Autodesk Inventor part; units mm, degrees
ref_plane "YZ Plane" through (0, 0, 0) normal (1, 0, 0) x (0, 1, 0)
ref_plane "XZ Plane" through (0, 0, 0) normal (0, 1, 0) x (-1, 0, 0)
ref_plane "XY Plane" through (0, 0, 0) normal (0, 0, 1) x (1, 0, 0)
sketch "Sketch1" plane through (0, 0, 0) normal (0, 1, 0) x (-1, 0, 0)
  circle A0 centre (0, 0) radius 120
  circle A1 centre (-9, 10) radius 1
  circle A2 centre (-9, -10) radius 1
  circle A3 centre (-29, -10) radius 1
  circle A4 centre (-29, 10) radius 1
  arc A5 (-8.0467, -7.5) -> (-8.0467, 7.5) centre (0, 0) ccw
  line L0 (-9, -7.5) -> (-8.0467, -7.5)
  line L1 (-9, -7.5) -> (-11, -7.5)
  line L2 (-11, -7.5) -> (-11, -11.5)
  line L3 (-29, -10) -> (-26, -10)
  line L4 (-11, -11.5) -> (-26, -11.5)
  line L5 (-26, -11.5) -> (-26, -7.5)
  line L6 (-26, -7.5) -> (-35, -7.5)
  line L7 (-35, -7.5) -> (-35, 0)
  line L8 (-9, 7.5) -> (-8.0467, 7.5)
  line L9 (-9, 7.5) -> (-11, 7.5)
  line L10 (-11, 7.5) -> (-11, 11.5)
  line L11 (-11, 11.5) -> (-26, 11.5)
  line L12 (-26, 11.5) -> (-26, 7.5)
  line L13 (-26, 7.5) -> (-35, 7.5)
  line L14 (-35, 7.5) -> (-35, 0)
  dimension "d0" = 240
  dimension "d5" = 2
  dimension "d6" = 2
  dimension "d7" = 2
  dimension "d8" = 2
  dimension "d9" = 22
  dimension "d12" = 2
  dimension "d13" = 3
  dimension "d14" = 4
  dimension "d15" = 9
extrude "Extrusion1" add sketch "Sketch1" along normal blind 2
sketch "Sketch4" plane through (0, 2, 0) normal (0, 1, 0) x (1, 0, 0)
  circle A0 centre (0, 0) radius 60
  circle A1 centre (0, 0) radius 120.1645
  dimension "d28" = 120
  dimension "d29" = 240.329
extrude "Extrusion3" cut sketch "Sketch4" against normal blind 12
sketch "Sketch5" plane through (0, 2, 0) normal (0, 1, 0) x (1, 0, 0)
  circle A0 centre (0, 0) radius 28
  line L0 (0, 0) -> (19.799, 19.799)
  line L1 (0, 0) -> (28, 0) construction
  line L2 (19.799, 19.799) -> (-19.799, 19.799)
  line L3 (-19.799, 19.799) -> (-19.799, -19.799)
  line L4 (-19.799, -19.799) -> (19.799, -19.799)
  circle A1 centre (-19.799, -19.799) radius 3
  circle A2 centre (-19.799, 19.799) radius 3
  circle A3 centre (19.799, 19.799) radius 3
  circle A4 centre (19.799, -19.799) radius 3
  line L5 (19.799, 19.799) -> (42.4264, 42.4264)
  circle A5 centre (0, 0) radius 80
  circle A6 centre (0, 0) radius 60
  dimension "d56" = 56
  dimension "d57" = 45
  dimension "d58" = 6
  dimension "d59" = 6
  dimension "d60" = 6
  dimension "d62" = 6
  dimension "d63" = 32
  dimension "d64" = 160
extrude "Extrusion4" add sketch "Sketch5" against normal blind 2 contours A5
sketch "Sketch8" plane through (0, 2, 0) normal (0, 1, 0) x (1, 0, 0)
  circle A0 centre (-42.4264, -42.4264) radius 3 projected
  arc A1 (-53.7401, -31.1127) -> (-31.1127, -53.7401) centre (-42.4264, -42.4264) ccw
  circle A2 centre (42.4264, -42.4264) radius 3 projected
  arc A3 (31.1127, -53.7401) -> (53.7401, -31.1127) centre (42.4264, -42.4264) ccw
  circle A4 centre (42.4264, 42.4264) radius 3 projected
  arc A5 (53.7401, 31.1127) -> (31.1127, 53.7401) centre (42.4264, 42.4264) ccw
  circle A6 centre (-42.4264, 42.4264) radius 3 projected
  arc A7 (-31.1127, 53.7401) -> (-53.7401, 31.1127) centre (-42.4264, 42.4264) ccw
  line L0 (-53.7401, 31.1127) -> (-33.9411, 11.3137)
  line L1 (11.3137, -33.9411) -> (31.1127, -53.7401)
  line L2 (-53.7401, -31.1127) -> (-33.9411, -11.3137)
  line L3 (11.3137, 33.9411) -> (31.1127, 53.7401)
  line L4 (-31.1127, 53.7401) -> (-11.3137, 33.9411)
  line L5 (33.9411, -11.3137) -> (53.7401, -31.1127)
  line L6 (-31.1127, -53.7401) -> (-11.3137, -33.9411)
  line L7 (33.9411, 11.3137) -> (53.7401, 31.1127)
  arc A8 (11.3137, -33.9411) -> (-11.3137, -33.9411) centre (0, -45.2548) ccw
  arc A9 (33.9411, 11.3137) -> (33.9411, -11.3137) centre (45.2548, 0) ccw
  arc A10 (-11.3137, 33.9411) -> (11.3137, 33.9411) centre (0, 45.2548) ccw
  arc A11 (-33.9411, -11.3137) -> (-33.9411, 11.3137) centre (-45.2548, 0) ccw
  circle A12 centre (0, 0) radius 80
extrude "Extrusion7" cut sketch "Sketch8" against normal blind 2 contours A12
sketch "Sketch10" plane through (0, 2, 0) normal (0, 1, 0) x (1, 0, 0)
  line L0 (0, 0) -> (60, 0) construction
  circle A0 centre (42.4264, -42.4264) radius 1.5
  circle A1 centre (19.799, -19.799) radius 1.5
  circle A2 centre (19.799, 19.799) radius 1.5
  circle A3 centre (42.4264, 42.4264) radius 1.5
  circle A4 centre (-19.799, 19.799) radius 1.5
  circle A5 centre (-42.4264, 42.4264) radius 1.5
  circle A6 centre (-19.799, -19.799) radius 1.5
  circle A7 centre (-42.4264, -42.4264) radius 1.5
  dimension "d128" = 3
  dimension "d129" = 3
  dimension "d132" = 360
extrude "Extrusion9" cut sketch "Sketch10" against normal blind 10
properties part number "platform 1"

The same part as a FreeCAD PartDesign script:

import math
import FreeCAD as App
import Part
import Sketcher

doc = App.newDocument("Part")
body = doc.addObject("PartDesign::Body", "Body")

# Sketch on XZ plane
sketch1 = body.newObject("Sketcher::SketchObject", "Sketch")
sketch1.AttachmentSupport = (doc.getObject("XZ_Plane"), [""])
sketch1.MapMode = "FlatFace"
sketch1.addGeometry(Part.Circle(App.Vector(0, 0, 0), App.Vector(0, 0, 1), 120), False)
sketch1.addGeometry(Part.Circle(App.Vector(29, -10, 0), App.Vector(0, 0, 1), 1), False)
sketch1.addGeometry(Part.Circle(App.Vector(9, -10, 0), App.Vector(0, 0, 1), 1), False)
sketch1.addGeometry(Part.Circle(App.Vector(29, 10, 0), App.Vector(0, 0, 1), 1), False)
sketch1.addGeometry(Part.LineSegment(App.Vector(26, -11.5, 0), App.Vector(26, -10, 0)), False)
sketch1.addGeometry(Part.LineSegment(App.Vector(26, -10, 0), App.Vector(26, -7.5, 0)), False)
sketch1.addGeometry(Part.LineSegment(App.Vector(26, -7.5, 0), App.Vector(35, -7.5, 0)), False)
sketch1.addGeometry(Part.LineSegment(App.Vector(35, -7.5, 0), App.Vector(35, 7.5, 0)), False)
sketch1.addGeometry(Part.LineSegment(App.Vector(35, 7.5, 0), App.Vector(26, 7.5, 0)), False)
sketch1.addGeometry(Part.LineSegment(App.Vector(26, 7.5, 0), App.Vector(26, 11.5, 0)), False)
sketch1.addGeometry(Part.LineSegment(App.Vector(26, 11.5, 0), App.Vector(11, 11.5, 0)), False)
sketch1.addGeometry(Part.LineSegment(App.Vector(11, 11.5, 0), App.Vector(11, 7.5, 0)), False)
sketch1.addGeometry(Part.LineSegment(App.Vector(11, 7.5, 0), App.Vector(8.0467, 7.5, 0)), False)
sketch1.addGeometry(Part.ArcOfCircle(Part.Circle(App.Vector(0, 0, 0), App.Vector(0, 0, 1), 10.999972), math.radians(42.986023), math.radians(317.013977)), False)
sketch1.addGeometry(Part.LineSegment(App.Vector(8.0467, -7.5, 0), App.Vector(11, -7.5, 0)), False)
sketch1.addGeometry(Part.LineSegment(App.Vector(11, -7.5, 0), App.Vector(11, -11.5, 0)), False)
sketch1.addGeometry(Part.LineSegment(App.Vector(11, -11.5, 0), App.Vector(26, -11.5, 0)), False)
sketch1.addGeometry(Part.Circle(App.Vector(9, 10, 0), App.Vector(0, 0, 1), 1), False)
sketch1.addConstraint(Sketcher.Constraint("Coincident", 4, 2, 5, 1))
sketch1.addConstraint(Sketcher.Constraint("Coincident", 5, 2, 6, 1))
sketch1.addConstraint(Sketcher.Constraint("Coincident", 6, 2, 7, 1))
sketch1.addConstraint(Sketcher.Constraint("Coincident", 7, 2, 8, 1))
sketch1.addConstraint(Sketcher.Constraint("Coincident", 8, 2, 9, 1))
sketch1.addConstraint(Sketcher.Constraint("Coincident", 9, 2, 10, 1))
sketch1.addConstraint(Sketcher.Constraint("Coincident", 10, 2, 11, 1))
sketch1.addConstraint(Sketcher.Constraint("Coincident", 11, 2, 12, 1))
sketch1.addConstraint(Sketcher.Constraint("Coincident", 12, 2, 13, 1))
sketch1.addConstraint(Sketcher.Constraint("Coincident", 13, 2, 14, 1))
sketch1.addConstraint(Sketcher.Constraint("Coincident", 14, 2, 15, 1))
sketch1.addConstraint(Sketcher.Constraint("Coincident", 15, 2, 16, 1))
sketch1.addConstraint(Sketcher.Constraint("Coincident", 16, 2, 4, 1))
sketch1.addConstraint(Sketcher.Constraint("Vertical", 4))
sketch1.addConstraint(Sketcher.Constraint("Vertical", 5))
sketch1.addConstraint(Sketcher.Constraint("Horizontal", 6))
sketch1.addConstraint(Sketcher.Constraint("Vertical", 7))
sketch1.addConstraint(Sketcher.Constraint("Horizontal", 8))
sketch1.addConstraint(Sketcher.Constraint("Vertical", 9))
sketch1.addConstraint(Sketcher.Constraint("Horizontal", 10))
sketch1.addConstraint(Sketcher.Constraint("Vertical", 11))
sketch1.addConstraint(Sketcher.Constraint("Horizontal", 12))
sketch1.addConstraint(Sketcher.Constraint("Horizontal", 14))
sketch1.addConstraint(Sketcher.Constraint("Vertical", 15))
sketch1.addConstraint(Sketcher.Constraint("Horizontal", 16))
sketch1.addConstraint(Sketcher.Constraint("Coincident", 0, 3, -1, 1))
sketch1.addConstraint(Sketcher.Constraint("Coincident", 13, 3, -1, 1))
sketch1.addConstraint(Sketcher.Constraint("Equal", 1, 2))
sketch1.addConstraint(Sketcher.Constraint("Equal", 2, 3))
sketch1.addConstraint(Sketcher.Constraint("Equal", 3, 17))
sketch1.addConstraint(Sketcher.Constraint("Symmetric", 1, 3, 3, 3, -1))
sketch1.addConstraint(Sketcher.Constraint("Symmetric", 2, 3, 17, 3, -1))
sketch1.addConstraint(Sketcher.Constraint("Symmetric", 5, 2, 8, 2, -1))
sketch1.addConstraint(Sketcher.Constraint("Symmetric", 11, 2, 14, 2, -1))
sketch1.addConstraint(Sketcher.Constraint("Horizontal", 1, 3, 2, 3))
sketch1.addConstraint(Sketcher.Constraint("Horizontal", 2, 3, 4, 2))
sketch1.addConstraint(Sketcher.Constraint("Horizontal", 8, 2, 11, 2))
sketch1.addConstraint(Sketcher.Constraint("Equal", 16, 7))
sketch1.addConstraint(Sketcher.Constraint("Equal", 11, 15))
sketch1.addConstraint(Sketcher.Constraint("Diameter", 0, 240.0))
sketch1.addConstraint(Sketcher.Constraint("Diameter", 1, 2.0))
sketch1.addConstraint(Sketcher.Constraint("Radius", 13, 11.0))
sketch1.addConstraint(Sketcher.Constraint("DistanceX", 6, 1, 6, 2, 9.0))
sketch1.addConstraint(Sketcher.Constraint("DistanceY", 9, 1, 9, 2, 4.0))
sketch1.addConstraint(Sketcher.Constraint("DistanceX", -1, 1, 2, 3, 9.0))
sketch1.addConstraint(Sketcher.Constraint("DistanceX", 4, 2, 1, 3, 3.0))
sketch1.addConstraint(Sketcher.Constraint("DistanceX", 17, 3, 10, 2, 2.0))
sketch1.addConstraint(Sketcher.Constraint("DistanceX", 10, 2, 10, 1, 15.0))
sketch1.addConstraint(Sketcher.Constraint("DistanceY", 4, 1, 4, 2, 1.5))
pad1 = body.newObject("PartDesign::Pad", "Pad")
pad1.Profile = sketch1
pad1.Length = 2
pad1.Reversed = True

# Sketch on XZ plane
sketch2 = body.newObject("Sketcher::SketchObject", "Sketch001")
sketch2.AttachmentSupport = (doc.getObject("XZ_Plane"), [""])
sketch2.MapMode = "FlatFace"
sketch2.AttachmentOffset = App.Placement(App.Vector(0, 0, -2), App.Rotation())
sketch2.addGeometry(Part.Circle(App.Vector(0, 0, 0), App.Vector(0, 0, 1), 120.1645), False)
sketch2.addGeometry(Part.Circle(App.Vector(0, 0, 0), App.Vector(0, 0, 1), 60), False)
sketch2.addConstraint(Sketcher.Constraint("Coincident", 0, 3, -1, 1))
sketch2.addConstraint(Sketcher.Constraint("Coincident", 1, 3, -1, 1))
sketch2.addConstraint(Sketcher.Constraint("Diameter", 1, 120.0))
sketch2.addConstraint(Sketcher.Constraint("Diameter", 0, 240.329))
pocket1 = body.newObject("PartDesign::Pocket", "Pocket")
pocket1.Profile = sketch2
pocket1.Length = 12
pocket1.Reversed = True

# Sketch on XZ plane
sketch3 = body.newObject("Sketcher::SketchObject", "Sketch002")
sketch3.AttachmentSupport = (doc.getObject("XZ_Plane"), [""])
sketch3.MapMode = "FlatFace"
sketch3.AttachmentOffset = App.Placement(App.Vector(0, 0, -2), App.Rotation())
sketch3.addGeometry(Part.Circle(App.Vector(0, 0, 0), App.Vector(0, 0, 1), 80), False)
sketch3.addGeometry(Part.Circle(App.Vector(0, 0, 0), App.Vector(0, 0, 1), 60), False)
sketch3.addConstraint(Sketcher.Constraint("Coincident", 0, 3, -1, 1))
sketch3.addConstraint(Sketcher.Constraint("Coincident", 1, 3, -1, 1))
sketch3.addConstraint(Sketcher.Constraint("Diameter", 0, 160.0))
sketch3.addConstraint(Sketcher.Constraint("Diameter", 1, 120.0))
pad2 = body.newObject("PartDesign::Pad", "Pad001")
pad2.Profile = sketch3
pad2.Length = 2

# Sketch on XZ plane
sketch4 = body.newObject("Sketcher::SketchObject", "Sketch003")
sketch4.AttachmentSupport = (doc.getObject("XZ_Plane"), [""])
sketch4.MapMode = "FlatFace"
sketch4.AttachmentOffset = App.Placement(App.Vector(0, 0, -2), App.Rotation())
sketch4.addGeometry(Part.Circle(App.Vector(0, 0, 0), App.Vector(0, 0, 1), 80), False)
sketch4.addGeometry(Part.ArcOfCircle(Part.Circle(App.Vector(-42.4264, 42.4264, 0), App.Vector(0, 0, 1), 15.999988), math.radians(45), math.radians(225)), False)
sketch4.addGeometry(Part.LineSegment(App.Vector(-53.7401, 31.1127, 0), App.Vector(-33.9411, 11.3137, 0)), False)
sketch4.addGeometry(Part.ArcOfCircle(Part.Circle(App.Vector(-45.2548, 0, 0), App.Vector(0, 0, 1), 15.999988), math.radians(-45), math.radians(45)), False)
sketch4.addGeometry(Part.LineSegment(App.Vector(-33.9411, -11.3137, 0), App.Vector(-53.7401, -31.1127, 0)), False)
sketch4.addGeometry(Part.ArcOfCircle(Part.Circle(App.Vector(-42.4264, -42.4264, 0), App.Vector(0, 0, 1), 15.999988), math.radians(135), math.radians(315)), False)
sketch4.addGeometry(Part.LineSegment(App.Vector(-31.1127, -53.7401, 0), App.Vector(-11.3137, -33.9411, 0)), False)
sketch4.addGeometry(Part.ArcOfCircle(Part.Circle(App.Vector(0, -45.2548, 0), App.Vector(0, 0, 1), 15.999988), math.radians(45), math.radians(135)), False)
sketch4.addGeometry(Part.LineSegment(App.Vector(11.3137, -33.9411, 0), App.Vector(31.1127, -53.7401, 0)), False)
sketch4.addGeometry(Part.ArcOfCircle(Part.Circle(App.Vector(42.4264, -42.4264, 0), App.Vector(0, 0, 1), 15.999988), math.radians(-135), math.radians(45)), False)
sketch4.addGeometry(Part.LineSegment(App.Vector(53.7401, -31.1127, 0), App.Vector(33.9411, -11.3137, 0)), False)
sketch4.addGeometry(Part.ArcOfCircle(Part.Circle(App.Vector(45.2548, 0, 0), App.Vector(0, 0, 1), 15.999988), math.radians(135), math.radians(225)), False)
sketch4.addGeometry(Part.LineSegment(App.Vector(33.9411, 11.3137, 0), App.Vector(53.7401, 31.1127, 0)), False)
sketch4.addGeometry(Part.ArcOfCircle(Part.Circle(App.Vector(42.4264, 42.4264, 0), App.Vector(0, 0, 1), 15.999988), math.radians(-45), math.radians(135)), False)
sketch4.addGeometry(Part.LineSegment(App.Vector(31.1127, 53.7401, 0), App.Vector(11.3137, 33.9411, 0)), False)
sketch4.addGeometry(Part.ArcOfCircle(Part.Circle(App.Vector(0, 45.2548, 0), App.Vector(0, 0, 1), 15.999988), math.radians(-135), math.radians(-45)), False)
sketch4.addGeometry(Part.LineSegment(App.Vector(-11.3137, 33.9411, 0), App.Vector(-31.1127, 53.7401, 0)), False)
sketch4.addConstraint(Sketcher.Constraint("Tangent", 1, 2, 2, 1))
sketch4.addConstraint(Sketcher.Constraint("Tangent", 2, 2, 3, 2))
sketch4.addConstraint(Sketcher.Constraint("Tangent", 3, 1, 4, 1))
sketch4.addConstraint(Sketcher.Constraint("Tangent", 4, 2, 5, 1))
sketch4.addConstraint(Sketcher.Constraint("Tangent", 5, 2, 6, 1))
sketch4.addConstraint(Sketcher.Constraint("Tangent", 6, 2, 7, 2))
sketch4.addConstraint(Sketcher.Constraint("Tangent", 7, 1, 8, 1))
sketch4.addConstraint(Sketcher.Constraint("Tangent", 8, 2, 9, 1))
sketch4.addConstraint(Sketcher.Constraint("Tangent", 9, 2, 10, 1))
sketch4.addConstraint(Sketcher.Constraint("Tangent", 10, 2, 11, 2))
sketch4.addConstraint(Sketcher.Constraint("Tangent", 11, 1, 12, 1))
sketch4.addConstraint(Sketcher.Constraint("Tangent", 12, 2, 13, 1))
sketch4.addConstraint(Sketcher.Constraint("Tangent", 13, 2, 14, 1))
sketch4.addConstraint(Sketcher.Constraint("Tangent", 14, 2, 15, 2))
sketch4.addConstraint(Sketcher.Constraint("Tangent", 15, 1, 16, 1))
sketch4.addConstraint(Sketcher.Constraint("Tangent", 16, 2, 1, 1))
sketch4.addConstraint(Sketcher.Constraint("Coincident", 0, 3, -1, 1))
sketch4.addConstraint(Sketcher.Constraint("Equal", 1, 3))
sketch4.addConstraint(Sketcher.Constraint("Equal", 3, 5))
sketch4.addConstraint(Sketcher.Constraint("Equal", 5, 7))
sketch4.addConstraint(Sketcher.Constraint("Equal", 7, 9))
sketch4.addConstraint(Sketcher.Constraint("Equal", 9, 11))
sketch4.addConstraint(Sketcher.Constraint("Equal", 11, 13))
sketch4.addConstraint(Sketcher.Constraint("Equal", 13, 15))
sketch4.addConstraint(Sketcher.Constraint("Symmetric", 1, 3, 9, 3, -1, 1))
sketch4.addConstraint(Sketcher.Constraint("Symmetric", 3, 3, 11, 3, -1, 1))
sketch4.addConstraint(Sketcher.Constraint("Symmetric", 5, 3, 13, 3, -1, 1))
sketch4.addConstraint(Sketcher.Constraint("Symmetric", 7, 3, 15, 3, -1, 1))
sketch4.addConstraint(Sketcher.Constraint("Symmetric", 5, 3, 9, 3, -2))
sketch4.addConstraint(Sketcher.Constraint("PointOnObject", 3, 3, -1))
sketch4.addConstraint(Sketcher.Constraint("PointOnObject", 7, 3, -2))
sketch4.addConstraint(Sketcher.Constraint("Perpendicular", 2, 4))
sketch4.addConstraint(Sketcher.Constraint("Parallel", 4, 6))
sketch4.addConstraint(Sketcher.Constraint("Equal", 4, 6))
sketch4.addConstraint(Sketcher.Constraint("Diameter", 0, 160.0))
sketch4.addConstraint(Sketcher.Constraint("Radius", 1, 16.0))
sketch4.addConstraint(Sketcher.Constraint("Distance", 2, 28.0))
pocket2 = body.newObject("PartDesign::Pocket", "Pocket001")
pocket2.Profile = sketch4
pocket2.Length = 2
pocket2.Reversed = True

# Sketch on XZ plane
sketch5 = body.newObject("Sketcher::SketchObject", "Sketch004")
sketch5.AttachmentSupport = (doc.getObject("XZ_Plane"), [""])
sketch5.MapMode = "FlatFace"
sketch5.AttachmentOffset = App.Placement(App.Vector(0, 0, -2), App.Rotation())
sketch5.addGeometry(Part.Circle(App.Vector(42.4264, 42.4264, 0), App.Vector(0, 0, 1), 1.5), False)
sketch5.addGeometry(Part.Circle(App.Vector(19.799, 19.799, 0), App.Vector(0, 0, 1), 1.5), False)
sketch5.addGeometry(Part.Circle(App.Vector(19.799, -19.799, 0), App.Vector(0, 0, 1), 1.5), False)
sketch5.addGeometry(Part.Circle(App.Vector(42.4264, -42.4264, 0), App.Vector(0, 0, 1), 1.5), False)
sketch5.addGeometry(Part.Circle(App.Vector(-19.799, -19.799, 0), App.Vector(0, 0, 1), 1.5), False)
sketch5.addGeometry(Part.Circle(App.Vector(-42.4264, -42.4264, 0), App.Vector(0, 0, 1), 1.5), False)
sketch5.addGeometry(Part.Circle(App.Vector(-19.799, 19.799, 0), App.Vector(0, 0, 1), 1.5), False)
sketch5.addGeometry(Part.Circle(App.Vector(-42.4264, 42.4264, 0), App.Vector(0, 0, 1), 1.5), False)
sketch5.addConstraint(Sketcher.Constraint("Equal", 0, 1))
sketch5.addConstraint(Sketcher.Constraint("Equal", 1, 2))
sketch5.addConstraint(Sketcher.Constraint("Equal", 2, 3))
sketch5.addConstraint(Sketcher.Constraint("Equal", 3, 4))
sketch5.addConstraint(Sketcher.Constraint("Equal", 4, 5))
sketch5.addConstraint(Sketcher.Constraint("Equal", 5, 6))
sketch5.addConstraint(Sketcher.Constraint("Equal", 6, 7))
sketch5.addConstraint(Sketcher.Constraint("Symmetric", 1, 3, 4, 3, -1, 1))
sketch5.addConstraint(Sketcher.Constraint("Symmetric", 0, 3, 5, 3, -1, 1))
sketch5.addConstraint(Sketcher.Constraint("Symmetric", 2, 3, 6, 3, -1, 1))
sketch5.addConstraint(Sketcher.Constraint("Symmetric", 3, 3, 7, 3, -1, 1))
sketch5.addConstraint(Sketcher.Constraint("Symmetric", 2, 3, 4, 3, -2))
sketch5.addConstraint(Sketcher.Constraint("Symmetric", 3, 3, 5, 3, -2))
sketch5.addConstraint(Sketcher.Constraint("Diameter", 0, 3.0))
sketch5.addConstraint(Sketcher.Constraint("DistanceX", -1, 1, 1, 3, 19.799))
sketch5.addConstraint(Sketcher.Constraint("DistanceY", -1, 1, 1, 3, 19.799))
sketch5.addConstraint(Sketcher.Constraint("DistanceX", -1, 1, 0, 3, 42.4264))
sketch5.addConstraint(Sketcher.Constraint("DistanceY", -1, 1, 0, 3, 42.4264))
pocket3 = body.newObject("PartDesign::Pocket", "Pocket002")
pocket3.Profile = sketch5
pocket3.Length = 10
pocket3.Reversed = True

doc.recompute()
